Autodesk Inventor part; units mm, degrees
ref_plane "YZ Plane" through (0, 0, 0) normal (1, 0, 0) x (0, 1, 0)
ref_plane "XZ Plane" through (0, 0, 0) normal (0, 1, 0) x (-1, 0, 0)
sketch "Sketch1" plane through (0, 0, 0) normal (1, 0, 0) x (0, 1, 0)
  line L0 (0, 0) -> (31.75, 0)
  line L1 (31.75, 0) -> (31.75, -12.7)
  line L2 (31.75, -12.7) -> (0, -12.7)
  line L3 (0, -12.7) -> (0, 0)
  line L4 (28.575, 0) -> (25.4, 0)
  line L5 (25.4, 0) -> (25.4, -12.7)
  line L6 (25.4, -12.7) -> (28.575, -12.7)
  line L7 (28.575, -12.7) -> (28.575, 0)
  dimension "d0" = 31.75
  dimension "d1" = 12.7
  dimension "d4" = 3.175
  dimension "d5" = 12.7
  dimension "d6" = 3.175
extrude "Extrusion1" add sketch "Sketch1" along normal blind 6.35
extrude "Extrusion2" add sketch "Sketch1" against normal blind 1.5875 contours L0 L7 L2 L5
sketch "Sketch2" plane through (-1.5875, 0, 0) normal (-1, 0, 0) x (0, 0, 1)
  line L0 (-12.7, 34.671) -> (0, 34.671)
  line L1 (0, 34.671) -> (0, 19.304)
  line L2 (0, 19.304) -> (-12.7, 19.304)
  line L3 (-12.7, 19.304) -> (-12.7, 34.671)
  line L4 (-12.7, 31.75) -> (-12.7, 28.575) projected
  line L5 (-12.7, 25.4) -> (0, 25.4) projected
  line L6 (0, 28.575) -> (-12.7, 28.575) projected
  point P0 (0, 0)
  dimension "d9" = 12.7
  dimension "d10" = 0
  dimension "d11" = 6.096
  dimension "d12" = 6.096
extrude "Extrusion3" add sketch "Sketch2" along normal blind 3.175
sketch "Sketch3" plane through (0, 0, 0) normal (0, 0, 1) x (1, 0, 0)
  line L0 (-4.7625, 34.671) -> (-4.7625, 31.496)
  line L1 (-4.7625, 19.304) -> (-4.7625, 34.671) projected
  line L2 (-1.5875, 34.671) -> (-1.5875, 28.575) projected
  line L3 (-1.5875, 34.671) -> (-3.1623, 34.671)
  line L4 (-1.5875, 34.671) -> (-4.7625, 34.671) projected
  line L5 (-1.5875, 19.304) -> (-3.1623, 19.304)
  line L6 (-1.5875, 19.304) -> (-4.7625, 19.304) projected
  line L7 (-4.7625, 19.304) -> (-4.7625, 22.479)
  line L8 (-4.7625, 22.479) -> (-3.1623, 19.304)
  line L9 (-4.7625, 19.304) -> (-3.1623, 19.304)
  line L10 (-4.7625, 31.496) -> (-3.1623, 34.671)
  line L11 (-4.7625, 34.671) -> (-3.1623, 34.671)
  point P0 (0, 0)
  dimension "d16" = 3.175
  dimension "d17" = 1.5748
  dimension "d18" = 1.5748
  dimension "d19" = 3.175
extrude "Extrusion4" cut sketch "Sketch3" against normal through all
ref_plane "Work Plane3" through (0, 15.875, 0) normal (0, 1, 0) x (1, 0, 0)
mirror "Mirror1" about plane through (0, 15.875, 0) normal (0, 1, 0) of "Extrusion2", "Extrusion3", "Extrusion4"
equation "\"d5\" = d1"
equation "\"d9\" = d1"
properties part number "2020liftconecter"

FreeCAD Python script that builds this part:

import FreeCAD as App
import Part
import Sketcher

V = App.Vector
Q = App.Units.Quantity

doc = App.newDocument("Part")
params = doc.addObject("Spreadsheet::Sheet", "Params")
for row, (alias, value) in enumerate([
    ("sketch1_height", "0.5 in"),
    ("sketch1_width", "1.25 in"),
    ("pad1_length", "0.25 in"),
    ("sketch2_height", "0.5 in"),
    ("sketch2_width", "0.125 in"),
    ("pad2_length", "0.0625 in"),
    ("sketch3_height", "0.5 in"),
    ("sketch3_width", "0.605 in"),
    ("pad3_length", "0.125 in"),
    ("sketch4_height", "0.125 in"),
    ("sketch4_width", "0.063 in"),
], start=1):
    params.set(f"A{row}", alias)
    params.set(f"B{row}", "=" + value)
    params.setAlias(f"B{row}", alias)

body = doc.addObject("PartDesign::Body", "Body")

sketch1 = body.newObject("Sketcher::SketchObject", "Sketch")
sketch1.AttachmentSupport = (doc.getObject("YZ_Plane"), [""])
sketch1.MapMode = "FlatFace"
sketch1.addGeometry([
    Part.LineSegment(V(0, 0, 0), V(0, -13, 0)),
    Part.LineSegment(V(0, -13, 0), V(32, -13, 0)),
    Part.LineSegment(V(32, -13, 0), V(32, 0, 0)),
    Part.LineSegment(V(32, 0, 0), V(0, 0, 0)),
], False)
sketch1.addConstraint([
    Sketcher.Constraint("Coincident", 0, 2, 1, 1),
    Sketcher.Constraint("Coincident", 1, 2, 2, 1),
    Sketcher.Constraint("Coincident", 2, 2, 3, 1),
    Sketcher.Constraint("Coincident", 3, 2, 0, 1),
    Sketcher.Constraint("Vertical", 0),
    Sketcher.Constraint("Horizontal", 1),
    Sketcher.Constraint("Vertical", 2),
    Sketcher.Constraint("Horizontal", 3),
    Sketcher.Constraint("Coincident", 3, 2, -1, 1),
    Sketcher.Constraint("DistanceY", 0, 2, 0, 1, Q("0.5 in")),
    Sketcher.Constraint("DistanceX", 1, 1, 1, 2, Q("1.25 in")),
])
sketch1.setExpression("Constraints[9]", "Params.sketch1_height")
sketch1.setExpression("Constraints[10]", "Params.sketch1_width")
pad1 = body.newObject("PartDesign::Pad", "Pad")
pad1.Profile = sketch1
pad1.setExpression("Length", "Params.pad1_length")

sketch2 = body.newObject("Sketcher::SketchObject", "Sketch001")
sketch2.AttachmentSupport = (doc.getObject("YZ_Plane"), [""])
sketch2.MapMode = "FlatFace"
sketch2.addGeometry([
    Part.LineSegment(V(28.6, 0, 0), V(25.4, 0, 0)),
    Part.LineSegment(V(25.4, 0, 0), V(25.4, -12.7, 0)),
    Part.LineSegment(V(25.4, -12.7, 0), V(28.6, -12.7, 0)),
    Part.LineSegment(V(28.6, -12.7, 0), V(28.6, 0, 0)),
], False)
sketch2.addConstraint([
    Sketcher.Constraint("Coincident", 0, 2, 1, 1),
    Sketcher.Constraint("Coincident", 1, 2, 2, 1),
    Sketcher.Constraint("Coincident", 2, 2, 3, 1),
    Sketcher.Constraint("Coincident", 3, 2, 0, 1),
    Sketcher.Constraint("Horizontal", 0),
    Sketcher.Constraint("Vertical", 1),
    Sketcher.Constraint("Horizontal", 2),
    Sketcher.Constraint("Vertical", 3),
    Sketcher.Constraint("PointOnObject", 0, 2, -1),
    Sketcher.Constraint("DistanceY", 1, 2, 1, 1, Q("0.5 in")),
    Sketcher.Constraint("DistanceX", 0, 2, 0, 1, Q("0.125 in")),
    Sketcher.Constraint("DistanceX", -1, 1, 0, 2, Q("1 in")),
])
sketch2.setExpression("Constraints[9]", "Params.sketch2_height")
sketch2.setExpression("Constraints[10]", "Params.sketch2_width")
pad2 = body.newObject("PartDesign::Pad", "Pad001")
pad2.Profile = sketch2
pad2.setExpression("Length", "Params.pad2_length")
pad2.Reversed = True

sketch3 = body.newObject("Sketcher::SketchObject", "Sketch002")
sketch3.AttachmentSupport = (doc.getObject("YZ_Plane"), [""])
sketch3.MapMode = "FlatFace"
sketch3.AttachmentOffset = App.Placement(V(0, 0, -0.0625 * 25.4), App.Rotation())
sketch3.addGeometry([
    Part.LineSegment(V(35, 0, 0), V(35, -13, 0)),
    Part.LineSegment(V(35, -13, 0), V(19, -13, 0)),
    Part.LineSegment(V(19, -13, 0), V(19, 0, 0)),
    Part.LineSegment(V(19, 0, 0), V(35, 0, 0)),
], False)
sketch3.addConstraint([
    Sketcher.Constraint("Coincident", 0, 2, 1, 1),
    Sketcher.Constraint("Coincident", 1, 2, 2, 1),
    Sketcher.Constraint("Coincident", 2, 2, 3, 1),
    Sketcher.Constraint("Coincident", 3, 2, 0, 1),
    Sketcher.Constraint("Vertical", 0),
    Sketcher.Constraint("Horizontal", 1),
    Sketcher.Constraint("Vertical", 2),
    Sketcher.Constraint("Horizontal", 3),
    Sketcher.Constraint("PointOnObject", 2, 2, -1),
    Sketcher.Constraint("DistanceY", 0, 2, 0, 1, Q("0.5 in")),
    Sketcher.Constraint("DistanceX", 1, 2, 1, 1, Q("0.605 in")),
    Sketcher.Constraint("DistanceX", -1, 1, 1, 2, Q("0.76 in")),
])
sketch3.setExpression("Constraints[9]", "Params.sketch3_height")
sketch3.setExpression("Constraints[10]", "Params.sketch3_width")
pad3 = body.newObject("PartDesign::Pad", "Pad002")
pad3.Profile = sketch3
pad3.setExpression("Length", "Params.pad3_length")
pad3.Reversed = True

sketch4 = body.newObject("Sketcher::SketchObject", "Sketch003")
sketch4.AttachmentSupport = (doc.getObject("XY_Plane"), [""])
sketch4.MapMode = "FlatFace"
sketch4.addGeometry([
    Part.LineSegment(V(-3.2, 34.7, 0), V(-4.8, 34.7, 0)),
    Part.LineSegment(V(-4.8, 34.7, 0), V(-4.8, 31.5, 0)),
    Part.LineSegment(V(-4.8, 31.5, 0), V(-3.2, 34.7, 0)),
    Part.LineSegment(V(-3.2, 19.3, 0), V(-4.8, 22.5, 0)),
    Part.LineSegment(V(-4.8, 22.5, 0), V(-4.8, 19.3, 0)),
    Part.LineSegment(V(-4.8, 19.3, 0), V(-3.2, 19.3, 0)),
], False)
sketch4.addConstraint([
    Sketcher.Constraint("Coincident", 0, 2, 1, 1),
    Sketcher.Constraint("Coincident", 1, 2, 2, 1),
    Sketcher.Constraint("Coincident", 2, 2, 0, 1),
    Sketcher.Constraint("Coincident", 3, 2, 4, 1),
    Sketcher.Constraint("Coincident", 4, 2, 5, 1),
    Sketcher.Constraint("Coincident", 5, 2, 3, 1),
    Sketcher.Constraint("Horizontal", 0),
    Sketcher.Constraint("Vertical", 1),
    Sketcher.Constraint("Vertical", 4),
    Sketcher.Constraint("Horizontal", 5),
    Sketcher.Constraint("Vertical", 1, 2, 3, 2),
    Sketcher.Constraint("Vertical", 2, 2, 5, 2),
    Sketcher.Constraint("Equal", 1, 4),
    Sketcher.Constraint("DistanceY", 1, 2, 1, 1, Q("0.125 in")),
    Sketcher.Constraint("DistanceX", 0, 2, 0, 1, Q("0.063 in")),
    Sketcher.Constraint("DistanceY", -1, 1, 1, 2, Q("1.24 in")),
    Sketcher.Constraint("DistanceY", -1, 1, 4, 2, Q("0.76 in")),
    Sketcher.Constraint("DistanceX", 0, 2, -1, 1, Q("0.1875 in")),
])
sketch4.setExpression("Constraints[13]", "Params.sketch4_height")
sketch4.setExpression("Constraints[14]", "Params.sketch4_width")
pocket1 = body.newObject("PartDesign::Pocket", "Pocket")
pocket1.Profile = sketch4
pocket1.Type = "ThroughAll"
doc.recompute()

datumplane = body.newObject("PartDesign::Plane", "DatumPlane")
datumplane.AttachmentSupport = (doc.getObject("XZ_Plane"), [""])
datumplane.MapMode = "FlatFace"
datumplane.AttachmentOffset = App.Placement(V(0, 0, -0.625 * 25.4), App.Rotation())
mirrored = body.newObject("PartDesign::Mirrored", "Mirrored")
mirrored.Originals = [pad2, pad3, pocket1]
mirrored.MirrorPlane = (datumplane, [""])
body.Tip = mirrored

doc.recompute()
